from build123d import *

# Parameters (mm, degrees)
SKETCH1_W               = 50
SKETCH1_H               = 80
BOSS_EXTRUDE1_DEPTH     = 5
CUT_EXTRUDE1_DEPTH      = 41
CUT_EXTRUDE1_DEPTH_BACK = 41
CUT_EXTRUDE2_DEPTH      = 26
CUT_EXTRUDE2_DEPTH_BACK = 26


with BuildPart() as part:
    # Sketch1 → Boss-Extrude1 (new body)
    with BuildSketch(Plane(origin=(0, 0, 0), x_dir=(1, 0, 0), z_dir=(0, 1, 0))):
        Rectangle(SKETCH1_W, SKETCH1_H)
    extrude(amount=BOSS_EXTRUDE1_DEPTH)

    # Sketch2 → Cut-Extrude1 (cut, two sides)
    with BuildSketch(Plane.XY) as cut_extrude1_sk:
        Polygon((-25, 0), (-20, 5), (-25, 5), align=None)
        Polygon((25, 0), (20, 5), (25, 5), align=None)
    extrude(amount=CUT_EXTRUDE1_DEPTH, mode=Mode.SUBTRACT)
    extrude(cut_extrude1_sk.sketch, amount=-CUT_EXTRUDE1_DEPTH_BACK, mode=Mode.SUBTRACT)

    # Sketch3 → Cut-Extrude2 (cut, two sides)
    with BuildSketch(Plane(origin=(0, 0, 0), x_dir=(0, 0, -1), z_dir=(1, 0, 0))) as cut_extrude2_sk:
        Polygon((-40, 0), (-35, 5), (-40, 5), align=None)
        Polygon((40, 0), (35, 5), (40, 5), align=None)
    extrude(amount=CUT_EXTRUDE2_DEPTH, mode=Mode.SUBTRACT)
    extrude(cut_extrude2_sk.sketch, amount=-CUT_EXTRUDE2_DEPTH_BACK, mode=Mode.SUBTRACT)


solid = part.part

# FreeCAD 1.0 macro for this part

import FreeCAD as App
import Part
import Sketcher
from FreeCAD import Vector
Q = App.Units.Quantity

doc = App.newDocument("Part")
body = doc.addObject("PartDesign::Body", "Body")

# Sketch on XZ plane
sketch1 = body.newObject("Sketcher::SketchObject", "Sketch")
sketch1.AttachmentSupport = (doc.getObject("XZ_Plane"), [""])
sketch1.MapMode = "FlatFace"
sketch1.addGeometry(Part.LineSegment(Vector(-25, -40, 0), Vector(-25, 40, 0)), False)
sketch1.addGeometry(Part.LineSegment(Vector(-25, 40, 0), Vector(25, 40, 0)), False)
sketch1.addGeometry(Part.LineSegment(Vector(25, 40, 0), Vector(25, -40, 0)), False)
sketch1.addGeometry(Part.LineSegment(Vector(25, -40, 0), Vector(-25, -40, 0)), False)
sketch1.addConstraint(Sketcher.Constraint("Coincident", 0, 2, 1, 1))
sketch1.addConstraint(Sketcher.Constraint("Coincident", 1, 2, 2, 1))
sketch1.addConstraint(Sketcher.Constraint("Coincident", 2, 2, 3, 1))
sketch1.addConstraint(Sketcher.Constraint("Coincident", 3, 2, 0, 1))
sketch1.addConstraint(Sketcher.Constraint("Vertical", 0))
sketch1.addConstraint(Sketcher.Constraint("Horizontal", 1))
sketch1.addConstraint(Sketcher.Constraint("Vertical", 2))
sketch1.addConstraint(Sketcher.Constraint("Horizontal", 3))
sketch1.addConstraint(Sketcher.Constraint("Symmetric", 0, 2, 2, 2, -1, 1))
sketch1.addConstraint(Sketcher.Constraint("DistanceX", 1, 1, 1, 2, Q("50 mm")))
sketch1.addConstraint(Sketcher.Constraint("DistanceY", 0, 1, 0, 2, Q("80 mm")))
pad1 = body.newObject("PartDesign::Pad", "Pad")
pad1.Profile = sketch1
pad1.Length = 5
pad1.Reversed = True

# Sketch on XY plane
sketch2 = body.newObject("Sketcher::SketchObject", "Sketch001")
sketch2.AttachmentSupport = (doc.getObject("XY_Plane"), [""])
sketch2.MapMode = "FlatFace"
sketch2.addGeometry(Part.LineSegment(Vector(-25, 0, 0), Vector(-20, 5, 0)), False)
sketch2.addGeometry(Part.LineSegment(Vector(-20, 5, 0), Vector(-25, 5, 0)), False)
sketch2.addGeometry(Part.LineSegment(Vector(-25, 5, 0), Vector(-25, 0, 0)), False)
sketch2.addGeometry(Part.LineSegment(Vector(20, 5, 0), Vector(25, 0, 0)), False)
sketch2.addGeometry(Part.LineSegment(Vector(25, 0, 0), Vector(25, 5, 0)), False)
sketch2.addGeometry(Part.LineSegment(Vector(25, 5, 0), Vector(20, 5, 0)), False)
sketch2.addConstraint(Sketcher.Constraint("Coincident", 0, 2, 1, 1))
sketch2.addConstraint(Sketcher.Constraint("Coincident", 1, 2, 2, 1))
sketch2.addConstraint(Sketcher.Constraint("Coincident", 2, 2, 0, 1))
sketch2.addConstraint(Sketcher.Constraint("Coincident", 3, 2, 4, 1))
sketch2.addConstraint(Sketcher.Constraint("Coincident", 4, 2, 5, 1))
sketch2.addConstraint(Sketcher.Constraint("Coincident", 5, 2, 3, 1))
sketch2.addConstraint(Sketcher.Constraint("Horizontal", 1))
sketch2.addConstraint(Sketcher.Constraint("Vertical", 2))
sketch2.addConstraint(Sketcher.Constraint("Vertical", 4))
sketch2.addConstraint(Sketcher.Constraint("Horizontal", 5))
sketch2.addConstraint(Sketcher.Constraint("Symmetric", 2, 2, 3, 2, -1, 1))
sketch2.addConstraint(Sketcher.Constraint("Symmetric", 0, 2, 5, 2, -2))
sketch2.addConstraint(Sketcher.Constraint("PointOnObject", 2, 2, -1))
sketch2.addConstraint(Sketcher.Constraint("Perpendicular", 0, 3))
sketch2.addConstraint(Sketcher.Constraint("DistanceX", 1, 2, 1, 1, Q("5 mm")))
sketch2.addConstraint(Sketcher.Constraint("DistanceX", 0, 2, -1, 1, Q("20 mm")))
pocket1 = body.newObject("PartDesign::Pocket", "Pocket")
pocket1.Profile = sketch2
pocket1.Type = "ThroughAll"
pocket1.Midplane = True

# Sketch on YZ plane
sketch3 = body.newObject("Sketcher::SketchObject", "Sketch002")
sketch3.AttachmentSupport = (doc.getObject("YZ_Plane"), [""])
sketch3.MapMode = "FlatFace"
sketch3.addGeometry(Part.LineSegment(Vector(0, 40, 0), Vector(5, 35, 0)), False)
sketch3.addGeometry(Part.LineSegment(Vector(5, 35, 0), Vector(5, 40, 0)), False)
sketch3.addGeometry(Part.LineSegment(Vector(5, 40, 0), Vector(0, 40, 0)), False)
sketch3.addGeometry(Part.LineSegment(Vector(5, -35, 0), Vector(0, -40, 0)), False)
sketch3.addGeometry(Part.LineSegment(Vector(0, -40, 0), Vector(5, -40, 0)), False)
sketch3.addGeometry(Part.LineSegment(Vector(5, -40, 0), Vector(5, -35, 0)), False)
sketch3.addConstraint(Sketcher.Constraint("Coincident", 0, 2, 1, 1))
sketch3.addConstraint(Sketcher.Constraint("Coincident", 1, 2, 2, 1))
sketch3.addConstraint(Sketcher.Constraint("Coincident", 2, 2, 0, 1))
sketch3.addConstraint(Sketcher.Constraint("Coincident", 3, 2, 4, 1))
sketch3.addConstraint(Sketcher.Constraint("Coincident", 4, 2, 5, 1))
sketch3.addConstraint(Sketcher.Constraint("Coincident", 5, 2, 3, 1))
sketch3.addConstraint(Sketcher.Constraint("Vertical", 1))
sketch3.addConstraint(Sketcher.Constraint("Horizontal", 2))
sketch3.addConstraint(Sketcher.Constraint("Horizontal", 4))
sketch3.addConstraint(Sketcher.Constraint("Vertical", 5))
sketch3.addConstraint(Sketcher.Constraint("Symmetric", 2, 2, 3, 2, -1, 1))
sketch3.addConstraint(Sketcher.Constraint("Symmetric", 0, 2, 5, 2, -1))
sketch3.addConstraint(Sketcher.Constraint("PointOnObject", 2, 2, -2))
sketch3.addConstraint(Sketcher.Constraint("Perpendicular", 0, 3))
sketch3.addConstraint(Sketcher.Constraint("DistanceX", 2, 2, 2, 1, Q("5 mm")))
sketch3.addConstraint(Sketcher.Constraint("DistanceY", -1, 1, 0, 2, Q("35 mm")))
pocket2 = body.newObject("PartDesign::Pocket", "Pocket001")
pocket2.Profile = sketch3
pocket2.Type = "ThroughAll"
pocket2.Midplane = True

doc.recompute()
